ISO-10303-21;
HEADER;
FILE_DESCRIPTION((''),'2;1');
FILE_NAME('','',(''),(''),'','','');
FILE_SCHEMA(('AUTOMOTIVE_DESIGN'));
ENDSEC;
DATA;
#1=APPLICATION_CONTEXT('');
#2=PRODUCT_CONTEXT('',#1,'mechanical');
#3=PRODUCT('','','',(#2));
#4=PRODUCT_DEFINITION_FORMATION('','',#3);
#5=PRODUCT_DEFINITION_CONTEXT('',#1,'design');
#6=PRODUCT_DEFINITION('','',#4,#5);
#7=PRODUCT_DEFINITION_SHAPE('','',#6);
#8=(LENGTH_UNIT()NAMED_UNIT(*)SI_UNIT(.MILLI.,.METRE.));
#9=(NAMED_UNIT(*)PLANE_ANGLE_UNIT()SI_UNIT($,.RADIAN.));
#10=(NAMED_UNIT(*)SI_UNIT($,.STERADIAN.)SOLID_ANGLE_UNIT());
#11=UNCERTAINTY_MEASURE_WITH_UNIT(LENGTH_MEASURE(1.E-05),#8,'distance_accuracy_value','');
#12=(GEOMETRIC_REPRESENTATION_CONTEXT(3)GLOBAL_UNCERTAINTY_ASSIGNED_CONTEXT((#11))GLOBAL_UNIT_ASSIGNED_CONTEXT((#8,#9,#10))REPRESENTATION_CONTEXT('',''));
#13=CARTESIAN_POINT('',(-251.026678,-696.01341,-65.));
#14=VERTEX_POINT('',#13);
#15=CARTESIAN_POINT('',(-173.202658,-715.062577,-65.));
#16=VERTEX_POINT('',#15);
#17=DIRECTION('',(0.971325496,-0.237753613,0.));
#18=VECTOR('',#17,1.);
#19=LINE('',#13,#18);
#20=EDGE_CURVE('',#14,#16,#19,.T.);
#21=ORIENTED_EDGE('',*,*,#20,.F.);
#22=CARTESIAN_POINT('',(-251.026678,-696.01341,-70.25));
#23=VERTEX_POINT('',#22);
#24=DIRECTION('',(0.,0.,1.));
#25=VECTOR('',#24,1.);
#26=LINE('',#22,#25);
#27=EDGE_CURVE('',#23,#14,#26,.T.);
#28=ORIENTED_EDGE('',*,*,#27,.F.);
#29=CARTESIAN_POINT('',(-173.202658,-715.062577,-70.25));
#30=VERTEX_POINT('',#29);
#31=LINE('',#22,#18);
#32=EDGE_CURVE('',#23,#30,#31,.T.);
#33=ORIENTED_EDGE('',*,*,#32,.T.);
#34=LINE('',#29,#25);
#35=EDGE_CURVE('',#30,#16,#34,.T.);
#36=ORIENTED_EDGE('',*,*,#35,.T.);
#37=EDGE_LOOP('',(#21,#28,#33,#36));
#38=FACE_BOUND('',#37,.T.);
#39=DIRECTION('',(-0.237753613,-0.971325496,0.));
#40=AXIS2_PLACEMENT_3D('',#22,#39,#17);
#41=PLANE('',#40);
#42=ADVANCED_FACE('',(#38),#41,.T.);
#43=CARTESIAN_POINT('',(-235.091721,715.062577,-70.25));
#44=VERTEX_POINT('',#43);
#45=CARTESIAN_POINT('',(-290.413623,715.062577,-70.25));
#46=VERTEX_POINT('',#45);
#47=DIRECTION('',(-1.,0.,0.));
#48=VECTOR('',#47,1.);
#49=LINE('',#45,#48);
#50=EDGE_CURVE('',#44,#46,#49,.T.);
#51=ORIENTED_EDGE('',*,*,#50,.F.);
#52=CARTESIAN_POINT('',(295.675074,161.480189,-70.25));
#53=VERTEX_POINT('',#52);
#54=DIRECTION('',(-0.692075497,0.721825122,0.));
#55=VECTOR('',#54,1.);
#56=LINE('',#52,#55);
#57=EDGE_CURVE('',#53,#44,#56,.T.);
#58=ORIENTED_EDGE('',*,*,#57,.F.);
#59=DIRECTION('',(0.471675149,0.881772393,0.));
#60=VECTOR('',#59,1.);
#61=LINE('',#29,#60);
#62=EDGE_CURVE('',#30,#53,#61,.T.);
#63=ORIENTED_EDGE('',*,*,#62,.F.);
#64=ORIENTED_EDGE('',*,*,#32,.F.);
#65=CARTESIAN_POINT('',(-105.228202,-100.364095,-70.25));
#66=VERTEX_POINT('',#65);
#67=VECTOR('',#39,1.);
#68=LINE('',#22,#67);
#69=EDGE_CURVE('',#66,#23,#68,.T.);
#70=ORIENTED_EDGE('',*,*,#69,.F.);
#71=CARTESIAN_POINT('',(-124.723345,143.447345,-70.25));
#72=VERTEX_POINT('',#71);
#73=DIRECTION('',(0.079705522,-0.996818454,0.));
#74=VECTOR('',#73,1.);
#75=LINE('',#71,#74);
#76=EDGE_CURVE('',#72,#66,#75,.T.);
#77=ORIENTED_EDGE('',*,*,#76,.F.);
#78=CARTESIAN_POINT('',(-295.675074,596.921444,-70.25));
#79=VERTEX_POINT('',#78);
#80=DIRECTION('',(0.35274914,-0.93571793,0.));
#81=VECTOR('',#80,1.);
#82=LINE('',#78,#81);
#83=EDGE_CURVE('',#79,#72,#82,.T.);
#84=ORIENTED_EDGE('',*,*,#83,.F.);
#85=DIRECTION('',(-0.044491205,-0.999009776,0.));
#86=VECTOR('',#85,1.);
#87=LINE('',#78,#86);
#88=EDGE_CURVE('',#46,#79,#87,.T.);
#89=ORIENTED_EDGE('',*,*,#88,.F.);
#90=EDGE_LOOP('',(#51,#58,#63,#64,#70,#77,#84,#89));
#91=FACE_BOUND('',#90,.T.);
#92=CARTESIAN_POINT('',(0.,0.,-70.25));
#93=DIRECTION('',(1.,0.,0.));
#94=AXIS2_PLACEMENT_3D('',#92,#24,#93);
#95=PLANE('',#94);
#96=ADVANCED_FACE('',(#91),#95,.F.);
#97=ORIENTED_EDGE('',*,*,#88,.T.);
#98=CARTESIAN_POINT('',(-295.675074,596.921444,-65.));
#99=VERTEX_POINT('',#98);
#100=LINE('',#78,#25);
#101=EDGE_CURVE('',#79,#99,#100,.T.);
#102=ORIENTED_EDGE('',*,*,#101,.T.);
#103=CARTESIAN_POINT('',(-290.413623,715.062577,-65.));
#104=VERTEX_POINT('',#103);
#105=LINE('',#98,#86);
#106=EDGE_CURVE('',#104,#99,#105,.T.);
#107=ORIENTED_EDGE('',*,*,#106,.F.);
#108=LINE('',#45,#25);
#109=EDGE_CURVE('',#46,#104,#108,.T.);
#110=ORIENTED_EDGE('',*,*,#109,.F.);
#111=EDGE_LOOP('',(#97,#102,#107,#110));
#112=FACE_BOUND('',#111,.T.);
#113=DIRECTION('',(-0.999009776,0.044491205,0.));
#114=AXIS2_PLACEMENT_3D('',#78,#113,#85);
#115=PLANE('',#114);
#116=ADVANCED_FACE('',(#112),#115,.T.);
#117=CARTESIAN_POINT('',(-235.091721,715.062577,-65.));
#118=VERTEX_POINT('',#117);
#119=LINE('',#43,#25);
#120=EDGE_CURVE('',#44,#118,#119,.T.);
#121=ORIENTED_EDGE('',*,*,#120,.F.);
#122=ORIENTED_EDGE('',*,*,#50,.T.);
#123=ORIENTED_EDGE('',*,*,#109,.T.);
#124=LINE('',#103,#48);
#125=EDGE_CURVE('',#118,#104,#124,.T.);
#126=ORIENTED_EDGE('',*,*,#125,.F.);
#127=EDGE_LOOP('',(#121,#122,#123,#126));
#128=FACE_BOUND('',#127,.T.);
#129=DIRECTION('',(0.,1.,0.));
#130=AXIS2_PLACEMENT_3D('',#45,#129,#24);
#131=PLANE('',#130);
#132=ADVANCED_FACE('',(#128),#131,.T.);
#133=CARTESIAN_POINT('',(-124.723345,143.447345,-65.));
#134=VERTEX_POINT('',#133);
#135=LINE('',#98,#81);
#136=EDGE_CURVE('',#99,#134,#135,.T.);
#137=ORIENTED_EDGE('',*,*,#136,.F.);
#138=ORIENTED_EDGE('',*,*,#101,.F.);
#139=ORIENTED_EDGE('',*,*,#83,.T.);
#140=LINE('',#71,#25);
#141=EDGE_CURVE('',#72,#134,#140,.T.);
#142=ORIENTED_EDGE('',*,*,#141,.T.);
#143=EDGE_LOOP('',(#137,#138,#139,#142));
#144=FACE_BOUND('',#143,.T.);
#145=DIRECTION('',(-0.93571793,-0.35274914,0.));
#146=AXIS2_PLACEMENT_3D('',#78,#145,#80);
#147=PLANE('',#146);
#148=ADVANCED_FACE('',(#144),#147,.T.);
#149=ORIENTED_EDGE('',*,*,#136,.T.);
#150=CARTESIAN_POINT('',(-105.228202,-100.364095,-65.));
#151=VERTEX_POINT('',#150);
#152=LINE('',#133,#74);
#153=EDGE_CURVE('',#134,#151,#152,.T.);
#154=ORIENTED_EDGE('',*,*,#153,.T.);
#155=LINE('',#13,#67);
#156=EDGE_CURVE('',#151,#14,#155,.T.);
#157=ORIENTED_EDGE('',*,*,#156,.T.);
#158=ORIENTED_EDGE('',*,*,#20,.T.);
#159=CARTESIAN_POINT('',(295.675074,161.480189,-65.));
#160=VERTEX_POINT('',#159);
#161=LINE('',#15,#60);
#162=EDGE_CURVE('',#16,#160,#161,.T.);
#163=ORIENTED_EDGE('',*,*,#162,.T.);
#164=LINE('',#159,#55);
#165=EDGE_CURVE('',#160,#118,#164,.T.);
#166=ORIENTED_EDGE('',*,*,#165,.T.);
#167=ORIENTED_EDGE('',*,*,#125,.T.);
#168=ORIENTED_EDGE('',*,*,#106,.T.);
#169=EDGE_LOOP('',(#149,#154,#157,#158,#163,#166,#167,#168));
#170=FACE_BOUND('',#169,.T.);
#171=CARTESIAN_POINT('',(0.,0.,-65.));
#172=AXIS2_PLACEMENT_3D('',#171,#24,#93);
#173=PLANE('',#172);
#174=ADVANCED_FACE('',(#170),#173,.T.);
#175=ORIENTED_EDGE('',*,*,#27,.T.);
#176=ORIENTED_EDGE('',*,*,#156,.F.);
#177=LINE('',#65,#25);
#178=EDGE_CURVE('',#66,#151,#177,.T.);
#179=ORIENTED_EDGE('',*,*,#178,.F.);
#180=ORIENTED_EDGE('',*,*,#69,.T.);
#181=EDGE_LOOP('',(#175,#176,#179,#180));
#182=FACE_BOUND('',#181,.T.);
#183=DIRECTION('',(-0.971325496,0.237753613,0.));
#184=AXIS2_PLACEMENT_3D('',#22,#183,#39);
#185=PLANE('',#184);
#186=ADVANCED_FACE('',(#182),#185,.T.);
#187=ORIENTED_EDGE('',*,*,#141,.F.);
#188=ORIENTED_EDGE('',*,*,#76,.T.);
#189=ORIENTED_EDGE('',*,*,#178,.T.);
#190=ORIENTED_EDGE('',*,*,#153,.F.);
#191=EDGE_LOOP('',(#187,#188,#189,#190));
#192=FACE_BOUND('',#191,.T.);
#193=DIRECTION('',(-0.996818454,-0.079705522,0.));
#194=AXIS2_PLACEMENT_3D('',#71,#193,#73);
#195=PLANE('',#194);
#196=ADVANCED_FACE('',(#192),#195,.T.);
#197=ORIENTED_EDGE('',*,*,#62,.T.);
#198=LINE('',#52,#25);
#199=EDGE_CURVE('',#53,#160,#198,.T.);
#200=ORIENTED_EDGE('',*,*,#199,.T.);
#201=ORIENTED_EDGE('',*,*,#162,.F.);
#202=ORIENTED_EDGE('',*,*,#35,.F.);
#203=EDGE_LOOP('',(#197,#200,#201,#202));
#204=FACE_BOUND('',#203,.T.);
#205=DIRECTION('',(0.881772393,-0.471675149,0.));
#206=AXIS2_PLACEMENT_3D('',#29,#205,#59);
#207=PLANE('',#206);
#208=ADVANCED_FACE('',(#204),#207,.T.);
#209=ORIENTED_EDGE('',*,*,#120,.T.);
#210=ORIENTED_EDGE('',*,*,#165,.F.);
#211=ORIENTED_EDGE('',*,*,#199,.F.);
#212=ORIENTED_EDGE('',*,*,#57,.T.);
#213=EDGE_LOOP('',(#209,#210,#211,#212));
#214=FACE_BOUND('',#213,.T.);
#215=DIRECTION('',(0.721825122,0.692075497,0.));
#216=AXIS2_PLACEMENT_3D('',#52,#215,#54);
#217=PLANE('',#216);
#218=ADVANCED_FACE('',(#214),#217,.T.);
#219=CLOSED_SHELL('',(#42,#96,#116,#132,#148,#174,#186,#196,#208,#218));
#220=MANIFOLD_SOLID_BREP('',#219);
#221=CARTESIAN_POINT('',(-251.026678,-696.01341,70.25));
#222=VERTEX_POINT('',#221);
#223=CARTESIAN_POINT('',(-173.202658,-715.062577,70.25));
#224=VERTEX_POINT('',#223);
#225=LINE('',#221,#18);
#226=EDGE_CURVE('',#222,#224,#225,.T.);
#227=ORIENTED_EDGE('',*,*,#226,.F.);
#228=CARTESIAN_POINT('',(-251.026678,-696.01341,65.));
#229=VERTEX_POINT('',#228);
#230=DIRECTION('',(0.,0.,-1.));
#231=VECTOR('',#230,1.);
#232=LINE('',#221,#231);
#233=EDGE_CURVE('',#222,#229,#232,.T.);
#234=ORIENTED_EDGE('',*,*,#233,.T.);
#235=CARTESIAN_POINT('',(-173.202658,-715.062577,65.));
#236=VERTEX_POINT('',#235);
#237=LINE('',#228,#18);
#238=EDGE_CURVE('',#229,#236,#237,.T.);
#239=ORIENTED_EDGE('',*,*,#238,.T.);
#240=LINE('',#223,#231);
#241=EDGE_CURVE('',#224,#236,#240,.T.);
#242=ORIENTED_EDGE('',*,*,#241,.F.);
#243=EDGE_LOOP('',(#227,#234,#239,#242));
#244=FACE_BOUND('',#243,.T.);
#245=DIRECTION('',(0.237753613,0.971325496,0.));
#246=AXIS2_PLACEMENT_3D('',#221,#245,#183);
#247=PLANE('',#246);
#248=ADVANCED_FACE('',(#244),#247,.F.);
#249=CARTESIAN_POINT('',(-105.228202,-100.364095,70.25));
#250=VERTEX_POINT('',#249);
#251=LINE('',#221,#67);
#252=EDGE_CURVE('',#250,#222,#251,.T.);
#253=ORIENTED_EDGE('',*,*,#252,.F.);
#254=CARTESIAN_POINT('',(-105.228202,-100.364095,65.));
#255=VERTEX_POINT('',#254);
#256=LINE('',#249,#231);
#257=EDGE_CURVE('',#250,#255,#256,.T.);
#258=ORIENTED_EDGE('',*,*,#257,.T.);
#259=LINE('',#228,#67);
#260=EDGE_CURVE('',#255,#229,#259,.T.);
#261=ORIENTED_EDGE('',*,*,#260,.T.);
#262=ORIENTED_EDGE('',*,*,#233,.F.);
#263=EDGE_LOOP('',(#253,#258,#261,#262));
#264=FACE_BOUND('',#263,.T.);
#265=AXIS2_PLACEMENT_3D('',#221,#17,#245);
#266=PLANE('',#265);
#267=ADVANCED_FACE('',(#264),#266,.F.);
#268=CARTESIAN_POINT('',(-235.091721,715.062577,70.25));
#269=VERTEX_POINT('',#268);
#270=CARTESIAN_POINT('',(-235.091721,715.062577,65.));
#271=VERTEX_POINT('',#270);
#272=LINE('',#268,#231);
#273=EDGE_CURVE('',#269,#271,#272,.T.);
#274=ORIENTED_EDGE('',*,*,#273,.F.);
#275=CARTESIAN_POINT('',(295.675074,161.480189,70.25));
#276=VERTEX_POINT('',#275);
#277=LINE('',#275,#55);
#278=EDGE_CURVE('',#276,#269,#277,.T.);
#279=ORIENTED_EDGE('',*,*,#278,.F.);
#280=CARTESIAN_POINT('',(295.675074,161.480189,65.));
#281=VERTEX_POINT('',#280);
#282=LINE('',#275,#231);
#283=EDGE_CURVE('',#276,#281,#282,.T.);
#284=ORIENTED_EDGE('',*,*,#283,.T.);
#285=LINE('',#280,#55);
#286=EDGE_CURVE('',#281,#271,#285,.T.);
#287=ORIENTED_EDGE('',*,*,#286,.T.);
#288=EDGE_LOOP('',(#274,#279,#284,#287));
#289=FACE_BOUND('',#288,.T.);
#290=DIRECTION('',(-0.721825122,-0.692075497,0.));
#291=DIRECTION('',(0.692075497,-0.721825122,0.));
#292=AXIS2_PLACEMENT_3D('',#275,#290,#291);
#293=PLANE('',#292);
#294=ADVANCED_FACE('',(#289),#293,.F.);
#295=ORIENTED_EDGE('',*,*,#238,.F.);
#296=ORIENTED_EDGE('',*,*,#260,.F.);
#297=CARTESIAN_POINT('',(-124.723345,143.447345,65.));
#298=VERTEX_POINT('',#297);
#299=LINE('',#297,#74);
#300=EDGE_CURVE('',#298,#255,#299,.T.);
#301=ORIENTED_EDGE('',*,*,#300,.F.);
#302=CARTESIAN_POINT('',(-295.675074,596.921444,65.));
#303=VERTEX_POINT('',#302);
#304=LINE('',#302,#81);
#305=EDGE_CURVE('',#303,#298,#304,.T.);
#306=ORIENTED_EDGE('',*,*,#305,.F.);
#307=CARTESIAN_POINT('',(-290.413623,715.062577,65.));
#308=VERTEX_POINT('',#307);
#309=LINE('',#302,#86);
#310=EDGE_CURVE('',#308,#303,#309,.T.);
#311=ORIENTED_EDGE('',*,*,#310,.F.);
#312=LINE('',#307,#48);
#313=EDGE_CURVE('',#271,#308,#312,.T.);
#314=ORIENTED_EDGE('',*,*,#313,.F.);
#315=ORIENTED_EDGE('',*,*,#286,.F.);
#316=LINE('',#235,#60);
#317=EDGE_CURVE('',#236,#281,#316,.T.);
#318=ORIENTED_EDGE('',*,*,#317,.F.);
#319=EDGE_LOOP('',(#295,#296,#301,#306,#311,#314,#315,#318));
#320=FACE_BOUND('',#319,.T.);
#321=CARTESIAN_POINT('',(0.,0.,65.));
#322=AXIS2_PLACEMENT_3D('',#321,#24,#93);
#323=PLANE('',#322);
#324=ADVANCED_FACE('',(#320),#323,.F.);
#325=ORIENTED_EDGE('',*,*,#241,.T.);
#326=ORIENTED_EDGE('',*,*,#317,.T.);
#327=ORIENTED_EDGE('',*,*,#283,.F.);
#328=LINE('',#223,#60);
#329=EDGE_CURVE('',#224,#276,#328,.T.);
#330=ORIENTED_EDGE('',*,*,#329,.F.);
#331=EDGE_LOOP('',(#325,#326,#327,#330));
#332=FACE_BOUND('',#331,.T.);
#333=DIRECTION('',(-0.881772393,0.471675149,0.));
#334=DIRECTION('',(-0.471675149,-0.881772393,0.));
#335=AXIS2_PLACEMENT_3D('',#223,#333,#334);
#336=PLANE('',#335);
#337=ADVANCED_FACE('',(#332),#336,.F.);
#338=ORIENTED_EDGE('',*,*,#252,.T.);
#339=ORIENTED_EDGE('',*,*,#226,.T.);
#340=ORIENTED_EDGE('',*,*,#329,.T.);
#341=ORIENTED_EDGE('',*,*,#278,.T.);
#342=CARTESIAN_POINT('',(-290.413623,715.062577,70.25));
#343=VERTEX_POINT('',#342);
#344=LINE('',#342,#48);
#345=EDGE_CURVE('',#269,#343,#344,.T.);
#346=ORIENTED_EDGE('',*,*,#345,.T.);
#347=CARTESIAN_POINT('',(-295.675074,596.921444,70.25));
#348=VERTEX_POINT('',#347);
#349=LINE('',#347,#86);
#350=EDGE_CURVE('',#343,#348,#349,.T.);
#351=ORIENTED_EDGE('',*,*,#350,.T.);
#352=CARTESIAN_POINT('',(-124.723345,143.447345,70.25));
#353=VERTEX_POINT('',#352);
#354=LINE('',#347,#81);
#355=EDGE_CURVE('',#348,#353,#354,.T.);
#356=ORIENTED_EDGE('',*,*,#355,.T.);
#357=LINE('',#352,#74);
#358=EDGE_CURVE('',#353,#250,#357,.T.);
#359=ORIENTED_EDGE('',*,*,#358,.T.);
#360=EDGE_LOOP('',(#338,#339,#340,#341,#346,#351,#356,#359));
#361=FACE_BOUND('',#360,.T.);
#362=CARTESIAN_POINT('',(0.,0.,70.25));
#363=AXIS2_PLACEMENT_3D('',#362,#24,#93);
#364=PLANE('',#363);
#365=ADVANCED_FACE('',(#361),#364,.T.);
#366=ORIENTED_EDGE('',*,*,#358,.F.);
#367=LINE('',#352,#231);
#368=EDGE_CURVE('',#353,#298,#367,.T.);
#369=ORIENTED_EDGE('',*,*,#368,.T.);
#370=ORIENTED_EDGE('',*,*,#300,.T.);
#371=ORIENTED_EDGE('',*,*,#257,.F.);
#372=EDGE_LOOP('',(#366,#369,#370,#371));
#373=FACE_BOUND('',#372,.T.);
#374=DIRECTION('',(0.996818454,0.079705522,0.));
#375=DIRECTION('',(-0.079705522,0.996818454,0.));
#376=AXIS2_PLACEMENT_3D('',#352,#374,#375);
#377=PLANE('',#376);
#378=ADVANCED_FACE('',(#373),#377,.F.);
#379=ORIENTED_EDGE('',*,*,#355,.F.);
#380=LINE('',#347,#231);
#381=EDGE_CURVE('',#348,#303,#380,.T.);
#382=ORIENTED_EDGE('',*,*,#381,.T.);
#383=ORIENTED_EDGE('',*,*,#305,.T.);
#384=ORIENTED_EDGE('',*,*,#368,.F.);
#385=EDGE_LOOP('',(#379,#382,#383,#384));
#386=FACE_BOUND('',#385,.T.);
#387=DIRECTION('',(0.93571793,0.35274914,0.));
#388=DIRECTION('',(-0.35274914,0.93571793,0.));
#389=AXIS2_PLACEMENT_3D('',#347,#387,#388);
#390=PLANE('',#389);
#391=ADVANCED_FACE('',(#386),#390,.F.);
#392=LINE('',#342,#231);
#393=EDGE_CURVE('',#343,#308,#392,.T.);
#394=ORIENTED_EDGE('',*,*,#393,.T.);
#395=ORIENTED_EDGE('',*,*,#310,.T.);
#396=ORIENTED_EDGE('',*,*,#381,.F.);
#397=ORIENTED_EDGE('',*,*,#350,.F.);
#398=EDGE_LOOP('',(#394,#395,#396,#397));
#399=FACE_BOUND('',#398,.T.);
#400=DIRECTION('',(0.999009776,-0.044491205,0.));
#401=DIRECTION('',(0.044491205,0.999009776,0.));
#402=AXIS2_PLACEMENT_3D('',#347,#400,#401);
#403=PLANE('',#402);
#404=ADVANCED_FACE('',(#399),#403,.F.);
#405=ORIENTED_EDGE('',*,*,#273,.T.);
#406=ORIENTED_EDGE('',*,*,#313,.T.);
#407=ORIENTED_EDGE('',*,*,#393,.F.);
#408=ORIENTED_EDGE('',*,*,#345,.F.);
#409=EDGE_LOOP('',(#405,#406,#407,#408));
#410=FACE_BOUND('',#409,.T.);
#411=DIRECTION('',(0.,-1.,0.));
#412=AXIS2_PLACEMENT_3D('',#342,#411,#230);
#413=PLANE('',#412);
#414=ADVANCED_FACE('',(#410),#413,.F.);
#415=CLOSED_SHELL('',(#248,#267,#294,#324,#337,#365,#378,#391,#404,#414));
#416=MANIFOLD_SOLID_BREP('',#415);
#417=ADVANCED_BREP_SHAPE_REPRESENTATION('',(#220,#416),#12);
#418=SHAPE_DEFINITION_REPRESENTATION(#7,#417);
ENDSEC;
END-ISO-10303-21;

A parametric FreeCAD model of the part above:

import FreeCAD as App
import Part
import Sketcher

V = App.Vector
Q = App.Units.Quantity


def add_polygon(sketch, points):
    """Adds a closed chain of lines whose ends are joined by coincident constraints."""
    first, n = sketch.GeometryCount, len(points)
    for a, b in zip(points, points[1:] + points[:1]):
        sketch.addGeometry(Part.LineSegment(App.Vector(*a, 0), App.Vector(*b, 0)), False)
    for i in range(n):
        sketch.addConstraint(Sketcher.Constraint("Coincident", first + i, 2, first + (i + 1) % n, 1))

doc = App.newDocument("Part")
params = doc.addObject("Spreadsheet::Sheet", "Params")
for row, (alias, value) in enumerate([
    ("pad1_length", "5.25 mm"),
    ("pad2_length", "5.25 mm"),
], start=1):
    params.set(f"A{row}", alias)
    params.set(f"B{row}", "=" + value)
    params.setAlias(f"B{row}", alias)

body = doc.addObject("PartDesign::Body", "Body")

# Sketch on XY plane
sketch1 = doc.addObject("Sketcher::SketchObject", "Sketch")
body.addObject(sketch1)
sketch1.AttachmentSupport = (doc.XY_Plane, [""])
sketch1.MapMode = "FlatFace"
sketch1.AttachmentOffset = App.Placement(V(0, 0, 65), App.Rotation())
add_polygon(sketch1, [(296, 161), (-235, 715), (-290, 715), (-296, 597), (-125, 143), (-105, -100), (-251, -696), (-173, -715)])  # lines 0-7
sketch1.addConstraint([
    Sketcher.Constraint("Horizontal", 1),
    Sketcher.Constraint("Perpendicular", 5, 6),
    Sketcher.Constraint("Angle", 2, Q("-92.55 deg")),
    Sketcher.Constraint("DistanceX", 1, 2, 1, 1, Q("55.321902 mm")),
    Sketcher.Constraint("DistanceY", 3, 2, 2, 2, Q("453.474098 mm")),
    Sketcher.Constraint("Distance", 0, Q("766.920369 mm")),
    Sketcher.Constraint("Distance", 3, Q("484.62692 mm")),
    Sketcher.Constraint("Distance", 5, Q("613.233481 mm")),
    Sketcher.Constraint("DistanceX", 0, 2, -1, 1, Q("235.091721 mm")),
    Sketcher.Constraint("DistanceY", 5, 2, -1, 1, Q("696.01341 mm")),
    Sketcher.Constraint("DistanceY", -1, 1, 7, 2, Q("161.480189 mm")),
    Sketcher.Constraint("DistanceX", 2, 2, 1, 2, Q("5.261451 mm")),
    Sketcher.Constraint("DistanceY", 4, 2, 3, 2, Q("243.81144 mm")),
    Sketcher.Constraint("DistanceX", 0, 2, 4, 2, Q("129.863519 mm")),
    Sketcher.Constraint("DistanceX", 5, 2, 6, 2, Q("77.82402 mm")),
    Sketcher.Constraint("DistanceY", 6, 2, 2, 2, Q("1311.984021 mm")),
])
pad1 = doc.addObject("PartDesign::Pad", "Pad")
body.addObject(pad1)
pad1.Profile = sketch1
pad1.setExpression("Length", "Params.pad1_length")
body2 = doc.addObject("PartDesign::Body", "Body001")

# Sketch on XY plane
sketch2 = doc.addObject("Sketcher::SketchObject", "Sketch001")
body2.addObject(sketch2)
sketch2.AttachmentSupport = (doc.getObject("XY_Plane001"), [""])
sketch2.MapMode = "FlatFace"
sketch2.AttachmentOffset = App.Placement(V(0, 0, -65), App.Rotation())
add_polygon(sketch2, [(296, 161), (-235, 715), (-290, 715), (-296, 597), (-125, 143), (-105, -100), (-251, -696), (-173, -715)])  # lines 0-7
sketch2.addConstraint([
    Sketcher.Constraint("Horizontal", 1),
    Sketcher.Constraint("Perpendicular", 5, 6),
    Sketcher.Constraint("Angle", 2, Q("-92.55 deg")),
    Sketcher.Constraint("DistanceX", 1, 2, 1, 1, Q("55.321902 mm")),
    Sketcher.Constraint("DistanceY", 3, 2, 2, 2, Q("453.474098 mm")),
    Sketcher.Constraint("Distance", 0, Q("766.920369 mm")),
    Sketcher.Constraint("Distance", 3, Q("484.62692 mm")),
    Sketcher.Constraint("Distance", 5, Q("613.233481 mm")),
    Sketcher.Constraint("DistanceX", 0, 2, -1, 1, Q("235.091721 mm")),
    Sketcher.Constraint("DistanceY", 5, 2, -1, 1, Q("696.01341 mm")),
    Sketcher.Constraint("DistanceY", -1, 1, 7, 2, Q("161.480189 mm")),
    Sketcher.Constraint("DistanceX", 2, 2, 1, 2, Q("5.261451 mm")),
    Sketcher.Constraint("DistanceY", 4, 2, 3, 2, Q("243.81144 mm")),
    Sketcher.Constraint("DistanceX", 0, 2, 4, 2, Q("129.863519 mm")),
    Sketcher.Constraint("DistanceX", 5, 2, 6, 2, Q("77.82402 mm")),
    Sketcher.Constraint("DistanceY", 6, 2, 2, 2, Q("1311.984021 mm")),
])
pad2 = doc.addObject("PartDesign::Pad", "Pad001")
body2.addObject(pad2)
pad2.Profile = sketch2
pad2.setExpression("Length", "Params.pad2_length")
pad2.Reversed = True

doc.recompute()
